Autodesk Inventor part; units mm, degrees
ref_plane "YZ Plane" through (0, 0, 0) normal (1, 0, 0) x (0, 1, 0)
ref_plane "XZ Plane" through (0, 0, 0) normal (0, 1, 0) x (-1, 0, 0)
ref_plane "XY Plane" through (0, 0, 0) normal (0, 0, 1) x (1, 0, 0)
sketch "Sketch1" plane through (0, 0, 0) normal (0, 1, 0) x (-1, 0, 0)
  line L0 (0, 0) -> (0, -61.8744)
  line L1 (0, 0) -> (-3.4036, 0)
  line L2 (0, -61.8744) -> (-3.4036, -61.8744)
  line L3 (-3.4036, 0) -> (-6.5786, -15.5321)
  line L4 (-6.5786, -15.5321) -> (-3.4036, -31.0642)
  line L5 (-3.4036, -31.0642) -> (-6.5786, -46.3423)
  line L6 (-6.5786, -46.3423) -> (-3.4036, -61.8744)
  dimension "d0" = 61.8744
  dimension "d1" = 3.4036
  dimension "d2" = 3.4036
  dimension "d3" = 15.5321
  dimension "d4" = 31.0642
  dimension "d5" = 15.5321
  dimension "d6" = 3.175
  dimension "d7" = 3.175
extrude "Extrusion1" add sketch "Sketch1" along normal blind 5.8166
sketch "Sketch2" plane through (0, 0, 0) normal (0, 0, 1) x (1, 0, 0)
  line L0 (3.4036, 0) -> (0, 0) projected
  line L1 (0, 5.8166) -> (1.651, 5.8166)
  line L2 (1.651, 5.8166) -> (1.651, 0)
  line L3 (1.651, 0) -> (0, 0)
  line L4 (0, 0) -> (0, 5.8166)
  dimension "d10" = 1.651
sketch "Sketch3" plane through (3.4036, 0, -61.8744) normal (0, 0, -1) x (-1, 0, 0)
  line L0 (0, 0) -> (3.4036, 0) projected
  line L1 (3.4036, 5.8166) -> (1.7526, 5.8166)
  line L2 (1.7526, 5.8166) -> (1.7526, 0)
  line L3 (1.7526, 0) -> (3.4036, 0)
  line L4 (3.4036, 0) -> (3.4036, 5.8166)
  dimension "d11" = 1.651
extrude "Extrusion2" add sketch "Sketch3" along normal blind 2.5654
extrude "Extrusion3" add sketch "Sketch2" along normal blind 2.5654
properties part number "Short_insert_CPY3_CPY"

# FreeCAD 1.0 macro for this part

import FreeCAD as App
import Part
import Sketcher
from FreeCAD import Vector
Q = App.Units.Quantity


def add_polygon(sketch, points):
    """Adds a closed chain of lines whose ends are joined by coincident constraints."""
    first, n = sketch.GeometryCount, len(points)
    for a, b in zip(points, points[1:] + points[:1]):
        sketch.addGeometry(Part.LineSegment(App.Vector(*a, 0), App.Vector(*b, 0)), False)
    for i in range(n):
        sketch.addConstraint(Sketcher.Constraint("Coincident", first + i, 2, first + (i + 1) % n, 1))

doc = App.newDocument("Part")
body = doc.addObject("PartDesign::Body", "Body")

# Sketch on XZ plane
sketch1 = body.newObject("Sketcher::SketchObject", "Sketch")
sketch1.AttachmentSupport = (doc.getObject("XZ_Plane"), [""])
sketch1.MapMode = "FlatFace"
add_polygon(sketch1, [(0, -61.8744), (0, 0), (3.4036, 0), (6.5786, -15.5321), (3.4036, -31.0642), (6.5786, -46.3423), (3.4036, -61.8744)])  # lines 0-6
sketch1.addConstraint([
    Sketcher.Constraint("Vertical", 0),
    Sketcher.Constraint("Horizontal", 1),
    Sketcher.Constraint("Horizontal", 6),
    Sketcher.Constraint("Coincident", 0, 2, -1, 1),
    Sketcher.Constraint("Parallel", 3, 5),
    Sketcher.Constraint("Vertical", 1, 2, 3, 2),
    Sketcher.Constraint("Vertical", 2, 2, 4, 2),
    Sketcher.Constraint("Vertical", 3, 2, 5, 2),
    Sketcher.Constraint("Equal", 2, 3),
    Sketcher.Constraint("DistanceX", 1, 1, 1, 2, Q("0.134 in")),
    Sketcher.Constraint("DistanceY", 0, 1, 0, 2, Q("2.436 in")),
    Sketcher.Constraint("DistanceY", 3, 2, -1, 1, Q("1.223 in")),
    Sketcher.Constraint("DistanceX", 1, 2, 2, 2, Q("0.125 in")),
])
pad1 = body.newObject("PartDesign::Pad", "Pad")
pad1.Profile = sketch1
pad1.Length = Q("0.229 in")
pad1.Reversed = True

# Sketch on XY plane
sketch2 = body.newObject("Sketcher::SketchObject", "Sketch001")
sketch2.AttachmentSupport = (doc.getObject("XY_Plane"), [""])
sketch2.MapMode = "FlatFace"
sketch2.AttachmentOffset = App.Placement(Vector(0, 0, -2.436 * 25.4), App.Rotation())
add_polygon(sketch2, [(1.651, 5.8166), (1.651, 0), (0, 0), (0, 5.8166)])  # lines 0-3
sketch2.addConstraint([
    Sketcher.Constraint("Vertical", 0),
    Sketcher.Constraint("Horizontal", 1),
    Sketcher.Constraint("Vertical", 2),
    Sketcher.Constraint("Horizontal", 3),
    Sketcher.Constraint("Coincident", 1, 2, -1, 1),
    Sketcher.Constraint("DistanceX", 1, 2, 1, 1, Q("0.065 in")),
    Sketcher.Constraint("DistanceY", 0, 2, 0, 1, Q("0.229 in")),
])
pad2 = body.newObject("PartDesign::Pad", "Pad001")
pad2.Profile = sketch2
pad2.Length = Q("0.101 in")
pad2.Reversed = True

# Sketch on XY plane
sketch3 = body.newObject("Sketcher::SketchObject", "Sketch002")
sketch3.AttachmentSupport = (doc.getObject("XY_Plane"), [""])
sketch3.MapMode = "FlatFace"
add_polygon(sketch3, [(0, 0), (1.651, 0), (1.651, 5.8166), (0, 5.8166)])  # lines 0-3
sketch3.addConstraint([
    Sketcher.Constraint("Horizontal", 0),
    Sketcher.Constraint("Vertical", 1),
    Sketcher.Constraint("Horizontal", 2),
    Sketcher.Constraint("Vertical", 3),
    Sketcher.Constraint("Coincident", 3, 2, -1, 1),
    Sketcher.Constraint("DistanceX", 0, 1, 0, 2, Q("0.065 in")),
    Sketcher.Constraint("DistanceY", 1, 1, 1, 2, Q("0.229 in")),
])
pad3 = body.newObject("PartDesign::Pad", "Pad002")
pad3.Profile = sketch3
pad3.Length = Q("0.101 in")

doc.recompute()
